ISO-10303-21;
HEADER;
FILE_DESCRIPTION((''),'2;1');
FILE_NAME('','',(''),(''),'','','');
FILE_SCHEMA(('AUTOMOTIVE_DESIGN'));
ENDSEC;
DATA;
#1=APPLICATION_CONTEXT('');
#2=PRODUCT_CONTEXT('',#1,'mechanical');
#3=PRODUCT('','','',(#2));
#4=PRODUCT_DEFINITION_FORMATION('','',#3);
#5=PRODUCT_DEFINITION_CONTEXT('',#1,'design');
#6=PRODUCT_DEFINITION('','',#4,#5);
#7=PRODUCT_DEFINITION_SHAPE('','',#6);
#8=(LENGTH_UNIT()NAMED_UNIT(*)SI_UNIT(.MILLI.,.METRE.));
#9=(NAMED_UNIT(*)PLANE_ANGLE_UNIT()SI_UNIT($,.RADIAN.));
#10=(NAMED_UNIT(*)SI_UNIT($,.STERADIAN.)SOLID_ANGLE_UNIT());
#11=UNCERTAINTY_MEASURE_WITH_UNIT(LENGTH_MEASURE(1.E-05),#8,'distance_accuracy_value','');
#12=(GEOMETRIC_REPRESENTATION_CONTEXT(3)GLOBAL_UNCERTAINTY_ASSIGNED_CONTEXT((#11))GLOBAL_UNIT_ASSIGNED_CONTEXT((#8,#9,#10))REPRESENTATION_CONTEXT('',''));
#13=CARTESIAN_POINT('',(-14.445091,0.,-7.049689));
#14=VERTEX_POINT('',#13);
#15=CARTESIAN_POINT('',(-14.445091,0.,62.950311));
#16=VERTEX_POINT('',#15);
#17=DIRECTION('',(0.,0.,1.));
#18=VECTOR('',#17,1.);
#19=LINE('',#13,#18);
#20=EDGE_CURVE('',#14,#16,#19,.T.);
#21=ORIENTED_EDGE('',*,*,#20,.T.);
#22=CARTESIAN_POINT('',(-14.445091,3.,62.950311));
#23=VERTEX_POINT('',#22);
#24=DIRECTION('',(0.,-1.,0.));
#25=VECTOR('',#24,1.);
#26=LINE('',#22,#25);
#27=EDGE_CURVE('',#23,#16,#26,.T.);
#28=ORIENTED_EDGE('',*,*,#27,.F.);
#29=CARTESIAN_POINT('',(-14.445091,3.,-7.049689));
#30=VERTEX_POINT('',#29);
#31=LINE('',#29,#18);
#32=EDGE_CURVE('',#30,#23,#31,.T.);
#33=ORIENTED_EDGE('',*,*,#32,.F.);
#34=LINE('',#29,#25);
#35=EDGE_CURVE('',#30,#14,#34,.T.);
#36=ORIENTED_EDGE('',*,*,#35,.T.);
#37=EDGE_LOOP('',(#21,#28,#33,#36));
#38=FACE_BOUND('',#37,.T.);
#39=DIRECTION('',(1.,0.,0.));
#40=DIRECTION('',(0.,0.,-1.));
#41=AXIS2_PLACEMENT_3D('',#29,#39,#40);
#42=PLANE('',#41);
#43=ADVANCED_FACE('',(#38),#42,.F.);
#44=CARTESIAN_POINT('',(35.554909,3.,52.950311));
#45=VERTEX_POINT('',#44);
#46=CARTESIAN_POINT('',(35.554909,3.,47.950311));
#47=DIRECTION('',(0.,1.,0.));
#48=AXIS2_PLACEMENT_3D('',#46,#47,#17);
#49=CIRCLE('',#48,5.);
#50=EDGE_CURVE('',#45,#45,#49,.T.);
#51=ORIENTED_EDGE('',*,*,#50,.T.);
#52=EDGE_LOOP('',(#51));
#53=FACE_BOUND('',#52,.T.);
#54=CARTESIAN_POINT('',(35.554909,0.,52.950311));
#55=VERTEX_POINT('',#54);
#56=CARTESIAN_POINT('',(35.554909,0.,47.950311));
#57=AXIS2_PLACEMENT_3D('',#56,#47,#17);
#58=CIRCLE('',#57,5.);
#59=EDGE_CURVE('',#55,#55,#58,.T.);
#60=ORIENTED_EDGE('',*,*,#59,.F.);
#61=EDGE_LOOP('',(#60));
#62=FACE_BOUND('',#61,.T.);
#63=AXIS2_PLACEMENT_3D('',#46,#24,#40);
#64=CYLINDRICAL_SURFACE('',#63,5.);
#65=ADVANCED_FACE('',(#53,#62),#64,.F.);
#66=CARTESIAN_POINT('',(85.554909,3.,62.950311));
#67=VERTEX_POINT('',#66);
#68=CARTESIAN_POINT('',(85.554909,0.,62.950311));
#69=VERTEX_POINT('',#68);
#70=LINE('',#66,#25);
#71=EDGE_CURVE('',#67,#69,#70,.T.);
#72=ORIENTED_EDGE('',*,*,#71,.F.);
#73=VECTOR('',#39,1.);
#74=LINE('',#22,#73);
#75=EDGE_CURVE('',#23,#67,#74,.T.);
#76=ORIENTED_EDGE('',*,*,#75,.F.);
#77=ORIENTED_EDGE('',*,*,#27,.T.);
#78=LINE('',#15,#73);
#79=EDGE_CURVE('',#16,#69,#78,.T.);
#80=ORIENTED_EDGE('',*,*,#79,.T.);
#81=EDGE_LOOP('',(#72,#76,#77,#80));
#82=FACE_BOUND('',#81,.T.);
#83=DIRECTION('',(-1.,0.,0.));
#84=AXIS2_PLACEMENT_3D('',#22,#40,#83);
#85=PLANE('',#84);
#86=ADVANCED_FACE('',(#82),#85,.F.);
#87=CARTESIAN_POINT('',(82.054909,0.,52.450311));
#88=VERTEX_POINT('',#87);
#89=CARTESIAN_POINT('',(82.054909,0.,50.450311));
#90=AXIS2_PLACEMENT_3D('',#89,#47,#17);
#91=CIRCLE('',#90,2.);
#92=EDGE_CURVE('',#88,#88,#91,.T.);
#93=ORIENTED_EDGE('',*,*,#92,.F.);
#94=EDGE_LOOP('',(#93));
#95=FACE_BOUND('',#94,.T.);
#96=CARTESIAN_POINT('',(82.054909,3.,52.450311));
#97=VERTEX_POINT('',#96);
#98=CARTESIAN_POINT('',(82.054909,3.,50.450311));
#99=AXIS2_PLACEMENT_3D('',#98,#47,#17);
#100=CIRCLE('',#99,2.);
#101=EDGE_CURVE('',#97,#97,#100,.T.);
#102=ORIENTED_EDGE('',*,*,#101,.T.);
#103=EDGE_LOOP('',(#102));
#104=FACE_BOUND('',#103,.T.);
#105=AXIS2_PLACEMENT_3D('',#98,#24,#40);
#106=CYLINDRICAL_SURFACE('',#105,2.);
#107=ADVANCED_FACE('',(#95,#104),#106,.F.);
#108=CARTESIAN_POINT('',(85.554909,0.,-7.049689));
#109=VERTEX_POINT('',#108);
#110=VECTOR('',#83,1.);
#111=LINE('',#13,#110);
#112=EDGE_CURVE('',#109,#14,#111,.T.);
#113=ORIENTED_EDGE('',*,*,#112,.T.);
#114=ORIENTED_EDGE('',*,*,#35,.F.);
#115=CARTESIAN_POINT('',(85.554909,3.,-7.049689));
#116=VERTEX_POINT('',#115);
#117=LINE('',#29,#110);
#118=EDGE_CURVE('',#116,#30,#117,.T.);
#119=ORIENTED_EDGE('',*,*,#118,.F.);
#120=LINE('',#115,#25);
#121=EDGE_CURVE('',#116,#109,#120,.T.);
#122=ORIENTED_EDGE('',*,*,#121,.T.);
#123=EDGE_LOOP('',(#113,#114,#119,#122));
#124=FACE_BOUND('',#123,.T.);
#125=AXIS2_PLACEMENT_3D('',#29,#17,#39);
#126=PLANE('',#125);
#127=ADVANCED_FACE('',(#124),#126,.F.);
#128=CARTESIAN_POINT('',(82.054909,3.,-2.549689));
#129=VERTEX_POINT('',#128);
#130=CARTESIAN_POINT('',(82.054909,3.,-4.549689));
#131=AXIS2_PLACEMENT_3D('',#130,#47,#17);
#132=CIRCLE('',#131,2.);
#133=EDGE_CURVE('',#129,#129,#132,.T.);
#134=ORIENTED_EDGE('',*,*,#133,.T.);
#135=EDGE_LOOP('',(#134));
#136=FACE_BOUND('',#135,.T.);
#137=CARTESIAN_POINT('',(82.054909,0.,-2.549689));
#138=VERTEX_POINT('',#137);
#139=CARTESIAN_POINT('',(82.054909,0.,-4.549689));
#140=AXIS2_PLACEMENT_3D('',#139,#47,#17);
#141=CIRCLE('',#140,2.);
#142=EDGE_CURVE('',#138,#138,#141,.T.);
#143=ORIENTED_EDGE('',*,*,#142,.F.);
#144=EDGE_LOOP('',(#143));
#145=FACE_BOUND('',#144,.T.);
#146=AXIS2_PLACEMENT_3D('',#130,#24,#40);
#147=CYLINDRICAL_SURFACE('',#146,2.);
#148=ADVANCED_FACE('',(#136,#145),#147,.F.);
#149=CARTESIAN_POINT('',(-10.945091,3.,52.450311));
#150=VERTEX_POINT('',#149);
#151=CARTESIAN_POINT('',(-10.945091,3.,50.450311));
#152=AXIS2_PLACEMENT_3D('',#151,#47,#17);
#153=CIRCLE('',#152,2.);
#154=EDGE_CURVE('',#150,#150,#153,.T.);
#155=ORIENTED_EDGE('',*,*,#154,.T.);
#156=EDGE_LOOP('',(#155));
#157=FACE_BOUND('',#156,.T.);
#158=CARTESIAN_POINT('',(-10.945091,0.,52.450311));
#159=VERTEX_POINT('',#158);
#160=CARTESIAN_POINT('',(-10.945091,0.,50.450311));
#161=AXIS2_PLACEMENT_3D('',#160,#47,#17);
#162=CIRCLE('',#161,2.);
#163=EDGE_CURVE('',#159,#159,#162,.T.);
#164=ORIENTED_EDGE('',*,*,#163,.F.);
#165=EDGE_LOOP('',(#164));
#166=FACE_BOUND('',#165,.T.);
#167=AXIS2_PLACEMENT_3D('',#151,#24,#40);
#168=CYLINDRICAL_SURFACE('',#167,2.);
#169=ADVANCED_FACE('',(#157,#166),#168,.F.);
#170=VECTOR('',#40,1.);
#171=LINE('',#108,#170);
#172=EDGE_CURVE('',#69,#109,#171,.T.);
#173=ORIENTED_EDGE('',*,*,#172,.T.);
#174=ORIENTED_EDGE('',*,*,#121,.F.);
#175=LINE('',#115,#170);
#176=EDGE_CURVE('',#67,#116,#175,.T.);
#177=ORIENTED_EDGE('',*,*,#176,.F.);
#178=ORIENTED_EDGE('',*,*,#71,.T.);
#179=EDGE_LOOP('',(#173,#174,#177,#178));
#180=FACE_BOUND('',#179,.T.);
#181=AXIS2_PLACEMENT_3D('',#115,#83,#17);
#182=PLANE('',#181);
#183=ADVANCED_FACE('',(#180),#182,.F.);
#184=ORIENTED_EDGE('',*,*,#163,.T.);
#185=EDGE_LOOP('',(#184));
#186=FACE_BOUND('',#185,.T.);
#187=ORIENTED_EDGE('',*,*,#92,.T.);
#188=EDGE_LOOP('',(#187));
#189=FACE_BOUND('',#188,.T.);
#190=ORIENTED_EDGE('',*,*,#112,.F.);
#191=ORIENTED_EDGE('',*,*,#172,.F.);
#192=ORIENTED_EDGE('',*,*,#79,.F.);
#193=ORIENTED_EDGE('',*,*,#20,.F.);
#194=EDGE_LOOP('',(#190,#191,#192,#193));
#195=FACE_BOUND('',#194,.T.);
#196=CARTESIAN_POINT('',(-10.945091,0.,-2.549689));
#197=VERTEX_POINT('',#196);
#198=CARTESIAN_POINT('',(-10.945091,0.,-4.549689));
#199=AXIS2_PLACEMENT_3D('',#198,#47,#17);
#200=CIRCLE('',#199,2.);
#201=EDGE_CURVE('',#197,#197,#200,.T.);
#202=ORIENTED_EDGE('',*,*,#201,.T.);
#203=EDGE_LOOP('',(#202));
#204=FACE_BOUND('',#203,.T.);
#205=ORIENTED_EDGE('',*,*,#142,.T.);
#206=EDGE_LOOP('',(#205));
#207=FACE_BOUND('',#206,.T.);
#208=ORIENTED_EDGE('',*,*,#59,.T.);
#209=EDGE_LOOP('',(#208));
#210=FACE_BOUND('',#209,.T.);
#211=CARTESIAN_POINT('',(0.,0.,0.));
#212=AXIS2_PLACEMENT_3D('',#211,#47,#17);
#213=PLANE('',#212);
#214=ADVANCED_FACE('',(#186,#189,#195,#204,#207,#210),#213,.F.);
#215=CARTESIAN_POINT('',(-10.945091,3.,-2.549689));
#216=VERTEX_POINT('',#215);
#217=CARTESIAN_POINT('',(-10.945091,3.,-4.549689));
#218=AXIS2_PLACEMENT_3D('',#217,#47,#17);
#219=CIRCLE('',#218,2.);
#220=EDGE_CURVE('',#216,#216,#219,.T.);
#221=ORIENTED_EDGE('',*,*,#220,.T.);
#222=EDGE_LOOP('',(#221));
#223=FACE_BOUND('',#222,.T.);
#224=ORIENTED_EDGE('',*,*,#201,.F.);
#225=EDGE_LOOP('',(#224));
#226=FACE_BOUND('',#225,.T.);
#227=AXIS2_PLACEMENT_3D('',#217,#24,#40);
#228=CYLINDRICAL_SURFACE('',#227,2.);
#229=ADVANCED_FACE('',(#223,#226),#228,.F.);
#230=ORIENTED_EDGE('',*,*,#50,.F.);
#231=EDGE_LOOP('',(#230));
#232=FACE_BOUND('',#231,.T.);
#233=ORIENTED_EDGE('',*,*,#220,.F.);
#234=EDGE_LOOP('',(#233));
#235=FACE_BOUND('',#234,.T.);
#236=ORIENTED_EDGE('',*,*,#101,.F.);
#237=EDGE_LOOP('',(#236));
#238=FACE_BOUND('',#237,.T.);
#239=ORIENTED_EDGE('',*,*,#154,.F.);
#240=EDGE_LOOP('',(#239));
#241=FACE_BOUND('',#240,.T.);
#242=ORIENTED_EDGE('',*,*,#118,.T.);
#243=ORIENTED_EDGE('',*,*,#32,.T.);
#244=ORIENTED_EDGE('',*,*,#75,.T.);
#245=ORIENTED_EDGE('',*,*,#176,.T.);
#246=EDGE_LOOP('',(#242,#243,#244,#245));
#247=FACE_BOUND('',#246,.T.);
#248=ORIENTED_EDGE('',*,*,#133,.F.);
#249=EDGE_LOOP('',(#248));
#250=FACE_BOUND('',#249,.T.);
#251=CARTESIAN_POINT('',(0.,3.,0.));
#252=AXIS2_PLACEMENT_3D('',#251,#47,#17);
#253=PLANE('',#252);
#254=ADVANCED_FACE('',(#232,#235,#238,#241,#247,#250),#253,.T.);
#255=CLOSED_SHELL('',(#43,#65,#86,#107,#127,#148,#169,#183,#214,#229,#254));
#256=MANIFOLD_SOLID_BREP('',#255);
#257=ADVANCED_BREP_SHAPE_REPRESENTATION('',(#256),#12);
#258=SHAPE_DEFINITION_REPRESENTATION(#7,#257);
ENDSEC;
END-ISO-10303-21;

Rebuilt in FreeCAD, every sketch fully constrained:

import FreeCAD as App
import Part
import Sketcher
from FreeCAD import Vector

doc = App.newDocument("Part")
body = doc.addObject("PartDesign::Body", "Body")

sketch1 = doc.addObject("Sketcher::SketchObject", "Sketch")
body.addObject(sketch1)
sketch1.AttachmentSupport = (doc.XZ_Plane, [""])
sketch1.MapMode = "FlatFace"
sketch1.addGeometry([
    Part.LineSegment(Vector(-14.4, -7, 0), Vector(-14.4, 63, 0)),
    Part.LineSegment(Vector(-14.4, 63, 0), Vector(85.6, 63, 0)),
    Part.LineSegment(Vector(85.6, 63, 0), Vector(85.6, -7, 0)),
    Part.LineSegment(Vector(85.6, -7, 0), Vector(-14.4, -7, 0)),
    Part.Circle(Vector(-10.9, 50.5, 0), Vector(0, 0, 1), 2),
    Part.Circle(Vector(35.6, 48, 0), Vector(0, 0, 1), 5),
    Part.Circle(Vector(82.1, 50.5, 0), Vector(0, 0, 1), 2),
    Part.Circle(Vector(-10.9, -4.5, 0), Vector(0, 0, 1), 2),
    Part.Circle(Vector(82.1, -4.5, 0), Vector(0, 0, 1), 2),
], False)
sketch1.addConstraint([
    Sketcher.Constraint("Coincident", 0, 2, 1, 1),
    Sketcher.Constraint("Coincident", 1, 2, 2, 1),
    Sketcher.Constraint("Coincident", 2, 2, 3, 1),
    Sketcher.Constraint("Coincident", 3, 2, 0, 1),
    Sketcher.Constraint("Vertical", 0),
    Sketcher.Constraint("Horizontal", 1),
    Sketcher.Constraint("Vertical", 2),
    Sketcher.Constraint("Horizontal", 3),
    Sketcher.Constraint("Equal", 4, 6),
    Sketcher.Constraint("Equal", 6, 7),
    Sketcher.Constraint("Equal", 7, 8),
    Sketcher.Constraint("Horizontal", 4, 3, 6, 3),
    Sketcher.Constraint("Horizontal", 7, 3, 8, 3),
    Sketcher.Constraint("Vertical", 4, 3, 7, 3),
    Sketcher.Constraint("Vertical", 6, 3, 8, 3),
    Sketcher.Constraint("Diameter", 4, 4.0),
    Sketcher.Constraint("Diameter", 5, 10.0),
    Sketcher.Constraint("DistanceX", 1, 1, 1, 2, 100.0),
    Sketcher.Constraint("DistanceY", 0, 1, 0, 2, 70.0),
    Sketcher.Constraint("DistanceX", 4, 3, 6, 3, 93.0),
    Sketcher.Constraint("DistanceY", 7, 3, 4, 3, 55.0),
    Sketcher.Constraint("DistanceX", 0, 2, 5, 3, 50.0),
    Sketcher.Constraint("DistanceY", 5, 3, 0, 2, 15.0),
    Sketcher.Constraint("DistanceX", 4, 3, 5, 3, 46.5),
    Sketcher.Constraint("DistanceY", 5, 3, 4, 3, 2.5),
    Sketcher.Constraint("DistanceX", 4, 3, -1, 1, 10.945091),
    Sketcher.Constraint("DistanceY", -1, 1, 4, 3, 50.450311),
])
pad1 = doc.addObject("PartDesign::Pad", "Pad")
body.addObject(pad1)
pad1.Profile = sketch1
pad1.Length = 3
pad1.Reversed = True

doc.recompute()
